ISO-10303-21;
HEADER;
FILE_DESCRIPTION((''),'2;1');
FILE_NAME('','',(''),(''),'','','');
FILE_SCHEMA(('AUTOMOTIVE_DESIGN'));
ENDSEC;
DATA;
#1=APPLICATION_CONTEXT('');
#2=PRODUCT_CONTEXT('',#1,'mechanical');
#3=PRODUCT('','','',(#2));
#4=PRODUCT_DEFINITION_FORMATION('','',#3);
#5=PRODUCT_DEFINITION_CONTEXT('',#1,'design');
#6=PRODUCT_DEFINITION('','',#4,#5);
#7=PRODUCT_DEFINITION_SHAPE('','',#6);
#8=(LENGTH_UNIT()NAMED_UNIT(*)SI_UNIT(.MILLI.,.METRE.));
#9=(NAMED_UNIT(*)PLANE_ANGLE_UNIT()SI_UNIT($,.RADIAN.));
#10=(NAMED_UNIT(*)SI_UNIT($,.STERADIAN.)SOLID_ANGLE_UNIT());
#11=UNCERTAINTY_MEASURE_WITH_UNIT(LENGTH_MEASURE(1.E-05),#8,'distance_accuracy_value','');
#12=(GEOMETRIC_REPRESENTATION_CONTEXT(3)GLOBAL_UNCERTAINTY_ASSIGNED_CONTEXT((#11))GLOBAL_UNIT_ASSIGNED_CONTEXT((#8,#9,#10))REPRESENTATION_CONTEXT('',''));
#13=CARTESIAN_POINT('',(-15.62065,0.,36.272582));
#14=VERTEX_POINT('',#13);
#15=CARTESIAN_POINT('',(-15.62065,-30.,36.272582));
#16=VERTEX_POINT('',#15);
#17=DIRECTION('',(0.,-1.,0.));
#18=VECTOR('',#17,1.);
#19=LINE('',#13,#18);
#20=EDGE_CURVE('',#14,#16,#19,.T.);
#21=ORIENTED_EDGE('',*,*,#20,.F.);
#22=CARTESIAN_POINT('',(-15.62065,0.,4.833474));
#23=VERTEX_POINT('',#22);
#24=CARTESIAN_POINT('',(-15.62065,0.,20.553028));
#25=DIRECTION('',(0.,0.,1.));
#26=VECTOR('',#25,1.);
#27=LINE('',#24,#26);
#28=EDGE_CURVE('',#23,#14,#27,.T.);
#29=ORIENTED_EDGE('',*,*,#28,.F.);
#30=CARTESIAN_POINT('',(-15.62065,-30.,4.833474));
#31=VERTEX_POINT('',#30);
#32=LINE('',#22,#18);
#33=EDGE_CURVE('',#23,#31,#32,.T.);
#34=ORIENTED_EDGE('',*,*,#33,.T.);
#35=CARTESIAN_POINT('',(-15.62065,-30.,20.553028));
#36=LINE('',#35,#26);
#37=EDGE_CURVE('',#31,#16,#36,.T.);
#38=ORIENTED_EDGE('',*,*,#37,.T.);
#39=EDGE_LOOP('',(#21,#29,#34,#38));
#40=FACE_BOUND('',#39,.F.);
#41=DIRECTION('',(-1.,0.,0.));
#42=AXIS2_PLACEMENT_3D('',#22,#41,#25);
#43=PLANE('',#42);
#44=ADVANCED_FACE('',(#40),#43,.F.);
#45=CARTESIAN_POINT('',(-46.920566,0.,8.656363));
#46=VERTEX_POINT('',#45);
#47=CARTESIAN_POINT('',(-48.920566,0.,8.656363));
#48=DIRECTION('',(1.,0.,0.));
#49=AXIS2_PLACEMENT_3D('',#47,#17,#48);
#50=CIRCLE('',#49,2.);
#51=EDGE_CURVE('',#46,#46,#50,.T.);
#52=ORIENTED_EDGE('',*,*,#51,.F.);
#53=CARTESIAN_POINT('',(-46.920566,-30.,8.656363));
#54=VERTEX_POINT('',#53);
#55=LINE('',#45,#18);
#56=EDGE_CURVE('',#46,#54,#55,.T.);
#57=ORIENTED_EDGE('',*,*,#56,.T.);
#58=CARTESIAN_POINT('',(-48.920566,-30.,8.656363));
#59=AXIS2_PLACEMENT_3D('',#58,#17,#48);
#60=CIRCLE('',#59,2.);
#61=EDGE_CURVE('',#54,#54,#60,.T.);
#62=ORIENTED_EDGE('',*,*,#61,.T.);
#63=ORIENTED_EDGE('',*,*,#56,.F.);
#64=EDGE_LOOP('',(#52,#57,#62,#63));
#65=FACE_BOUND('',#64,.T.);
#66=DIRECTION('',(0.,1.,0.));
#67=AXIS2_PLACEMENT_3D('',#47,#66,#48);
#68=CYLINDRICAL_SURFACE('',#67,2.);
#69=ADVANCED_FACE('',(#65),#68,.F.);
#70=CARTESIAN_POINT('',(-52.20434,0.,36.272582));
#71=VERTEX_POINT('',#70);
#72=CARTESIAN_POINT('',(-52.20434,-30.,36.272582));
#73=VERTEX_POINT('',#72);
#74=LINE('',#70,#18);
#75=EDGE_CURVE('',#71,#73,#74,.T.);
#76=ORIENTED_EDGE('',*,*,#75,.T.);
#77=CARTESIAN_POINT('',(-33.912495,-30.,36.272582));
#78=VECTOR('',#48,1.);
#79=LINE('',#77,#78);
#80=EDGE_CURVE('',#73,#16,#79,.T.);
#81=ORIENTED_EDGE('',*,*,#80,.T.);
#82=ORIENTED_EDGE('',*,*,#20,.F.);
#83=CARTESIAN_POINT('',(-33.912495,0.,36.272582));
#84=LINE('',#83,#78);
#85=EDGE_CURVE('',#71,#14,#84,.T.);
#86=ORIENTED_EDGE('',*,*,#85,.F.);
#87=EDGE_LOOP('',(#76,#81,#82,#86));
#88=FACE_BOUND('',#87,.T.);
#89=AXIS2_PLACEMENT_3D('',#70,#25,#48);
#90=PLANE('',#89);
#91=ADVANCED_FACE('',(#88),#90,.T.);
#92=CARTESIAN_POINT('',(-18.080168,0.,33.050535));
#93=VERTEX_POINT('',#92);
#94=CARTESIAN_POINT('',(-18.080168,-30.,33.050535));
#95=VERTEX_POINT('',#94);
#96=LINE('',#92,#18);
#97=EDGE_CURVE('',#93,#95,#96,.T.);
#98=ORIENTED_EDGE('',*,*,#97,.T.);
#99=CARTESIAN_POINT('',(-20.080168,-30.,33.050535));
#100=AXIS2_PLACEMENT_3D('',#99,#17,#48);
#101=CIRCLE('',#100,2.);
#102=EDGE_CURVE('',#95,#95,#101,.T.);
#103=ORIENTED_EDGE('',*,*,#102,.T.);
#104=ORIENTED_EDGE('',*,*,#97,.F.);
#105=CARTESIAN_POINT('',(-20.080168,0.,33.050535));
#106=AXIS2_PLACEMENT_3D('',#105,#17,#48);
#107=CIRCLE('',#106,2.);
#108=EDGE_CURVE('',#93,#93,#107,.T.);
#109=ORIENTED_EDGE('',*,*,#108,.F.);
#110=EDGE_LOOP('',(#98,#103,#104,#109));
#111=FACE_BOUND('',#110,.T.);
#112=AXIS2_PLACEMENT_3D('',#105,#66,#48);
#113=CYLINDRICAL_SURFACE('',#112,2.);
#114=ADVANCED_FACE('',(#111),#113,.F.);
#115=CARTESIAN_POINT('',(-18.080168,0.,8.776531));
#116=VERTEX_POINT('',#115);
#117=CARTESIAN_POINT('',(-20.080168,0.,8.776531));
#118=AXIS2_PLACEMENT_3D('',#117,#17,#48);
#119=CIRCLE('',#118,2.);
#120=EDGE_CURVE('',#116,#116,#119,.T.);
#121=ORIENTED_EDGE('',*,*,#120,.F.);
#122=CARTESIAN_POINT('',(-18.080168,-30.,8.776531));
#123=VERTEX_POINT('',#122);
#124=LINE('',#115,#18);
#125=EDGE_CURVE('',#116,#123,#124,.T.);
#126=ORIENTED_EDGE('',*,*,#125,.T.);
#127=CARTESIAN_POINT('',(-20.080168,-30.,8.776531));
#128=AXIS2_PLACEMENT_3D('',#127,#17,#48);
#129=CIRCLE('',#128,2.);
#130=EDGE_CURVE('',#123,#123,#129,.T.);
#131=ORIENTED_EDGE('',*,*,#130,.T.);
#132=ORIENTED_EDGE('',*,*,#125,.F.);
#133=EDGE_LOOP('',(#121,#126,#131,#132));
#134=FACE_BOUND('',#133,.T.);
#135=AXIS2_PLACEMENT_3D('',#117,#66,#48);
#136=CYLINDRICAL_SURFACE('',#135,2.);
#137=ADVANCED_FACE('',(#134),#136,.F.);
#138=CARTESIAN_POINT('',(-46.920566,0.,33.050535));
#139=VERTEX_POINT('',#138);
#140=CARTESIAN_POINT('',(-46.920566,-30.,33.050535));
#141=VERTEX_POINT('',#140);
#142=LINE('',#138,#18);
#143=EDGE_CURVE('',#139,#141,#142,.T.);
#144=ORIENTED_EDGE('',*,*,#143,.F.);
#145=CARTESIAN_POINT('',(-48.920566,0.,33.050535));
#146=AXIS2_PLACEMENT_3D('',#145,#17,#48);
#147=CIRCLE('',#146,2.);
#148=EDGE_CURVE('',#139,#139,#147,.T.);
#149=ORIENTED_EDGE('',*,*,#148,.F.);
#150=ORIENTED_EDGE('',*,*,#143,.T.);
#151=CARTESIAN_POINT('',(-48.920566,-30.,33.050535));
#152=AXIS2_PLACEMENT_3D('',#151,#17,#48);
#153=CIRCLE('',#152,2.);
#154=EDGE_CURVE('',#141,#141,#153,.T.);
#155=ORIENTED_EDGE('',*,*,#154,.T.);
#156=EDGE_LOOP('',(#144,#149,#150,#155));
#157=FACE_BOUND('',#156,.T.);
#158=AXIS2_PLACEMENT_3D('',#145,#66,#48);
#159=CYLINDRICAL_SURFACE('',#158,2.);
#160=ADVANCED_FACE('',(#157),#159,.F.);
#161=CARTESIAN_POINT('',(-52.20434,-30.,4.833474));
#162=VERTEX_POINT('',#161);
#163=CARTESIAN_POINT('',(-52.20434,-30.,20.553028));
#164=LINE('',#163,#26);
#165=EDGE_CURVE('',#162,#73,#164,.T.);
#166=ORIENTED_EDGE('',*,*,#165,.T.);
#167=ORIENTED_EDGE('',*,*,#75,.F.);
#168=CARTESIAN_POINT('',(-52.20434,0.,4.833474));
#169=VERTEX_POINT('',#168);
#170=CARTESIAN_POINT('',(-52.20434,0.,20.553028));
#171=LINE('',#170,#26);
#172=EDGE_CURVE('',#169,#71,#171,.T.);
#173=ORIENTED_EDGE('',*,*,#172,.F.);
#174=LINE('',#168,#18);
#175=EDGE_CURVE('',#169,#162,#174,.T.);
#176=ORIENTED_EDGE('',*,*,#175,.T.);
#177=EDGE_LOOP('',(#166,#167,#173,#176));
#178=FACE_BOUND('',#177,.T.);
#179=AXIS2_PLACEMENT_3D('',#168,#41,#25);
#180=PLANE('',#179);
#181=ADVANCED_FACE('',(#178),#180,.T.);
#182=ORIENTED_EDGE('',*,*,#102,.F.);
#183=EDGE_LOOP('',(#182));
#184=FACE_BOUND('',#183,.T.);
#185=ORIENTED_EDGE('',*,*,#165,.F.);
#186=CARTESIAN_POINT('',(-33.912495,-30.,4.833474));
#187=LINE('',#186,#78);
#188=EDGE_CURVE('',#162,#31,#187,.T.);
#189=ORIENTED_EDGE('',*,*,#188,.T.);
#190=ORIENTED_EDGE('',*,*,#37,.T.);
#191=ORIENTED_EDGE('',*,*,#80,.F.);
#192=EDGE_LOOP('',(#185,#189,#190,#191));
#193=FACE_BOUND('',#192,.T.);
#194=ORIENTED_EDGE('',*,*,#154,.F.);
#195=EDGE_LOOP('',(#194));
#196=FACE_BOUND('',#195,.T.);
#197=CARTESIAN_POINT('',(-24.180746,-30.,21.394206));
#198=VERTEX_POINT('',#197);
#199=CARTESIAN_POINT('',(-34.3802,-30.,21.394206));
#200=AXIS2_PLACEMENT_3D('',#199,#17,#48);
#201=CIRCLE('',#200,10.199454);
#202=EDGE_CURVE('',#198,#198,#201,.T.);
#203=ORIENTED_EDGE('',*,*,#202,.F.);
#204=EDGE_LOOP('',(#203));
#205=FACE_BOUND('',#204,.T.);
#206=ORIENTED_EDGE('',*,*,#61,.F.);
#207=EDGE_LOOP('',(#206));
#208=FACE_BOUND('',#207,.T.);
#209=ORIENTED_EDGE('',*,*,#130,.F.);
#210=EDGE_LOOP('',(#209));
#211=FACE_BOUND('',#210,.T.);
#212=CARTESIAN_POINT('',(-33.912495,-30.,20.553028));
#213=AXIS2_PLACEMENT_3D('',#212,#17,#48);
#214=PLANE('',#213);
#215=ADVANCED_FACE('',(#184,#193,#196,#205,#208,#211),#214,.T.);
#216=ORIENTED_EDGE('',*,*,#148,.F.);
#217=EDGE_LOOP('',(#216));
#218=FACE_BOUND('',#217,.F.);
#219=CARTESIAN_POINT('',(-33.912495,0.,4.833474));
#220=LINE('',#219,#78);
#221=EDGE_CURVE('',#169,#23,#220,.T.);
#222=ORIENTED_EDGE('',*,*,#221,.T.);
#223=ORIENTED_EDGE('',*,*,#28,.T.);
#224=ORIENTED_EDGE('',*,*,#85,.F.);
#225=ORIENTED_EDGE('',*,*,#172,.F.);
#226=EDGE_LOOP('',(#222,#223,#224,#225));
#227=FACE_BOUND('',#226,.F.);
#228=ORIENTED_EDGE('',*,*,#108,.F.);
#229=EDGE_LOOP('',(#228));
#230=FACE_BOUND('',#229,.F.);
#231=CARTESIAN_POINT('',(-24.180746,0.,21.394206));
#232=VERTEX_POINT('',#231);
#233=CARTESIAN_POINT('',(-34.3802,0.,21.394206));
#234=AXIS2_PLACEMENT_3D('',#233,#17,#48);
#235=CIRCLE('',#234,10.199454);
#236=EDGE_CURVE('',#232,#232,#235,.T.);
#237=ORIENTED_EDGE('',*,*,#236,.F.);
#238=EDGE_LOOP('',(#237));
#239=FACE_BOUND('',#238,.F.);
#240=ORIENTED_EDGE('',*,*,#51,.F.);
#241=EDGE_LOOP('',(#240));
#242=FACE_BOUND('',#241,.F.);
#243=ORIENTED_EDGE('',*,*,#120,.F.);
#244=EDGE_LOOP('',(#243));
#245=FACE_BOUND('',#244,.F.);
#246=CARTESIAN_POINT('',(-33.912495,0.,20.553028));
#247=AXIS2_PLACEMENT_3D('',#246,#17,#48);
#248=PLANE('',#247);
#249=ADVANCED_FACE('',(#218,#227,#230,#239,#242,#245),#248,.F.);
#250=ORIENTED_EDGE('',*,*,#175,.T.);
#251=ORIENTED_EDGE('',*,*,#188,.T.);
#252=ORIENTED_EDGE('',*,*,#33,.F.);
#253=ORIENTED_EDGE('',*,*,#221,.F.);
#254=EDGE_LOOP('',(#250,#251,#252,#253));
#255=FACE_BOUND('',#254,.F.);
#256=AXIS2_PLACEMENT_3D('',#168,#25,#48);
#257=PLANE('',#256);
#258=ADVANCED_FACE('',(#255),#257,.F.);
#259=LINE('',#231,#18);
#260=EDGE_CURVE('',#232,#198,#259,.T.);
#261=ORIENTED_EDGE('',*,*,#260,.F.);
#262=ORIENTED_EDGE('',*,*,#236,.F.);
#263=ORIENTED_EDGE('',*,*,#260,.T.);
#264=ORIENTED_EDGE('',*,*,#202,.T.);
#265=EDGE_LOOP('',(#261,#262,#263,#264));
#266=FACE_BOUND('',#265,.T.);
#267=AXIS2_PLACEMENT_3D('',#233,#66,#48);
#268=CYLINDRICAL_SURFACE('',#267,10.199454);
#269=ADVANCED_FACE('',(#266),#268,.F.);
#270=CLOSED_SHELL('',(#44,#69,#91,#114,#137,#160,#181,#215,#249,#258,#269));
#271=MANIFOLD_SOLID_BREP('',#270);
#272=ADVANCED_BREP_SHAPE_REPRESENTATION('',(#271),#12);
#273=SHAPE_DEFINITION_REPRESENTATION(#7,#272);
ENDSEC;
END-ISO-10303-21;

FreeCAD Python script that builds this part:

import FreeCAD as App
import Part
import Sketcher

V = App.Vector

doc = App.newDocument("Part")
body = doc.addObject("PartDesign::Body", "Body")

sketch1 = doc.addObject("Sketcher::SketchObject", "Sketch")
body.addObject(sketch1)
sketch1.AttachmentSupport = (doc.XZ_Plane, [""])
sketch1.MapMode = "FlatFace"
sketch1.addGeometry(Part.LineSegment(V(-52.20434, 36.272582, 0), V(-52.20434, 4.833474, 0)), False)
sketch1.addGeometry(Part.LineSegment(V(-52.20434, 4.833474, 0), V(-15.62065, 4.833474, 0)), False)
sketch1.addGeometry(Part.LineSegment(V(-15.62065, 4.833474, 0), V(-15.62065, 36.272582, 0)), False)
sketch1.addGeometry(Part.LineSegment(V(-15.62065, 36.272582, 0), V(-52.20434, 36.272582, 0)), False)
sketch1.addGeometry(Part.Circle(V(-48.920566, 8.656363, 0), V(0, 0, 1), 2), False)
sketch1.addGeometry(Part.Circle(V(-20.080168, 8.776531, 0), V(0, 0, 1), 2), False)
sketch1.addGeometry(Part.Circle(V(-48.920566, 33.050535, 0), V(0, 0, 1), 2), False)
sketch1.addGeometry(Part.Circle(V(-34.3802, 21.394206, 0), V(0, 0, 1), 10.199454), False)
sketch1.addGeometry(Part.Circle(V(-20.080168, 33.050535, 0), V(0, 0, 1), 2), False)
sketch1.addConstraint(Sketcher.Constraint("Coincident", 0, 2, 1, 1))
sketch1.addConstraint(Sketcher.Constraint("Coincident", 1, 2, 2, 1))
sketch1.addConstraint(Sketcher.Constraint("Coincident", 2, 2, 3, 1))
sketch1.addConstraint(Sketcher.Constraint("Coincident", 3, 2, 0, 1))
sketch1.addConstraint(Sketcher.Constraint("Vertical", 0))
sketch1.addConstraint(Sketcher.Constraint("Horizontal", 1))
sketch1.addConstraint(Sketcher.Constraint("Vertical", 2))
sketch1.addConstraint(Sketcher.Constraint("Horizontal", 3))
sketch1.addConstraint(Sketcher.Constraint("Equal", 4, 5))
sketch1.addConstraint(Sketcher.Constraint("Equal", 5, 6))
sketch1.addConstraint(Sketcher.Constraint("Equal", 6, 8))
sketch1.addConstraint(Sketcher.Constraint("Horizontal", 6, 3, 8, 3))
sketch1.addConstraint(Sketcher.Constraint("Vertical", 4, 3, 6, 3))
sketch1.addConstraint(Sketcher.Constraint("Vertical", 5, 3, 8, 3))
sketch1.addConstraint(Sketcher.Constraint("Diameter", 4, 4.0))
sketch1.addConstraint(Sketcher.Constraint("Diameter", 7, 20.398908))
sketch1.addConstraint(Sketcher.Constraint("DistanceX", 1, 1, 1, 2, 36.583689))
sketch1.addConstraint(Sketcher.Constraint("DistanceY", 0, 2, 0, 1, 31.439108))
sketch1.addConstraint(Sketcher.Constraint("DistanceX", 7, 3, -1, 1, 34.3802))
sketch1.addConstraint(Sketcher.Constraint("DistanceX", 4, 3, 5, 3, 28.840398))
sketch1.addConstraint(Sketcher.Constraint("DistanceX", 5, 3, -1, 1, 20.080168))
sketch1.addConstraint(Sketcher.Constraint("DistanceY", -1, 1, 5, 3, 8.776531))
sketch1.addConstraint(Sketcher.Constraint("DistanceX", 0, 2, -1, 1, 52.20434))
sketch1.addConstraint(Sketcher.Constraint("DistanceY", 7, 3, 6, 3, 11.656329))
sketch1.addConstraint(Sketcher.Constraint("DistanceY", 0, 2, 4, 3, 3.822889))
sketch1.addConstraint(Sketcher.Constraint("DistanceY", 0, 2, 6, 3, 28.217061))
sketch1.addConstraint(Sketcher.Constraint("DistanceY", 5, 3, 2, 2, 27.496051))
pad1 = doc.addObject("PartDesign::Pad", "Pad")
body.addObject(pad1)
pad1.Profile = sketch1
pad1.Length = 30

doc.recompute()
